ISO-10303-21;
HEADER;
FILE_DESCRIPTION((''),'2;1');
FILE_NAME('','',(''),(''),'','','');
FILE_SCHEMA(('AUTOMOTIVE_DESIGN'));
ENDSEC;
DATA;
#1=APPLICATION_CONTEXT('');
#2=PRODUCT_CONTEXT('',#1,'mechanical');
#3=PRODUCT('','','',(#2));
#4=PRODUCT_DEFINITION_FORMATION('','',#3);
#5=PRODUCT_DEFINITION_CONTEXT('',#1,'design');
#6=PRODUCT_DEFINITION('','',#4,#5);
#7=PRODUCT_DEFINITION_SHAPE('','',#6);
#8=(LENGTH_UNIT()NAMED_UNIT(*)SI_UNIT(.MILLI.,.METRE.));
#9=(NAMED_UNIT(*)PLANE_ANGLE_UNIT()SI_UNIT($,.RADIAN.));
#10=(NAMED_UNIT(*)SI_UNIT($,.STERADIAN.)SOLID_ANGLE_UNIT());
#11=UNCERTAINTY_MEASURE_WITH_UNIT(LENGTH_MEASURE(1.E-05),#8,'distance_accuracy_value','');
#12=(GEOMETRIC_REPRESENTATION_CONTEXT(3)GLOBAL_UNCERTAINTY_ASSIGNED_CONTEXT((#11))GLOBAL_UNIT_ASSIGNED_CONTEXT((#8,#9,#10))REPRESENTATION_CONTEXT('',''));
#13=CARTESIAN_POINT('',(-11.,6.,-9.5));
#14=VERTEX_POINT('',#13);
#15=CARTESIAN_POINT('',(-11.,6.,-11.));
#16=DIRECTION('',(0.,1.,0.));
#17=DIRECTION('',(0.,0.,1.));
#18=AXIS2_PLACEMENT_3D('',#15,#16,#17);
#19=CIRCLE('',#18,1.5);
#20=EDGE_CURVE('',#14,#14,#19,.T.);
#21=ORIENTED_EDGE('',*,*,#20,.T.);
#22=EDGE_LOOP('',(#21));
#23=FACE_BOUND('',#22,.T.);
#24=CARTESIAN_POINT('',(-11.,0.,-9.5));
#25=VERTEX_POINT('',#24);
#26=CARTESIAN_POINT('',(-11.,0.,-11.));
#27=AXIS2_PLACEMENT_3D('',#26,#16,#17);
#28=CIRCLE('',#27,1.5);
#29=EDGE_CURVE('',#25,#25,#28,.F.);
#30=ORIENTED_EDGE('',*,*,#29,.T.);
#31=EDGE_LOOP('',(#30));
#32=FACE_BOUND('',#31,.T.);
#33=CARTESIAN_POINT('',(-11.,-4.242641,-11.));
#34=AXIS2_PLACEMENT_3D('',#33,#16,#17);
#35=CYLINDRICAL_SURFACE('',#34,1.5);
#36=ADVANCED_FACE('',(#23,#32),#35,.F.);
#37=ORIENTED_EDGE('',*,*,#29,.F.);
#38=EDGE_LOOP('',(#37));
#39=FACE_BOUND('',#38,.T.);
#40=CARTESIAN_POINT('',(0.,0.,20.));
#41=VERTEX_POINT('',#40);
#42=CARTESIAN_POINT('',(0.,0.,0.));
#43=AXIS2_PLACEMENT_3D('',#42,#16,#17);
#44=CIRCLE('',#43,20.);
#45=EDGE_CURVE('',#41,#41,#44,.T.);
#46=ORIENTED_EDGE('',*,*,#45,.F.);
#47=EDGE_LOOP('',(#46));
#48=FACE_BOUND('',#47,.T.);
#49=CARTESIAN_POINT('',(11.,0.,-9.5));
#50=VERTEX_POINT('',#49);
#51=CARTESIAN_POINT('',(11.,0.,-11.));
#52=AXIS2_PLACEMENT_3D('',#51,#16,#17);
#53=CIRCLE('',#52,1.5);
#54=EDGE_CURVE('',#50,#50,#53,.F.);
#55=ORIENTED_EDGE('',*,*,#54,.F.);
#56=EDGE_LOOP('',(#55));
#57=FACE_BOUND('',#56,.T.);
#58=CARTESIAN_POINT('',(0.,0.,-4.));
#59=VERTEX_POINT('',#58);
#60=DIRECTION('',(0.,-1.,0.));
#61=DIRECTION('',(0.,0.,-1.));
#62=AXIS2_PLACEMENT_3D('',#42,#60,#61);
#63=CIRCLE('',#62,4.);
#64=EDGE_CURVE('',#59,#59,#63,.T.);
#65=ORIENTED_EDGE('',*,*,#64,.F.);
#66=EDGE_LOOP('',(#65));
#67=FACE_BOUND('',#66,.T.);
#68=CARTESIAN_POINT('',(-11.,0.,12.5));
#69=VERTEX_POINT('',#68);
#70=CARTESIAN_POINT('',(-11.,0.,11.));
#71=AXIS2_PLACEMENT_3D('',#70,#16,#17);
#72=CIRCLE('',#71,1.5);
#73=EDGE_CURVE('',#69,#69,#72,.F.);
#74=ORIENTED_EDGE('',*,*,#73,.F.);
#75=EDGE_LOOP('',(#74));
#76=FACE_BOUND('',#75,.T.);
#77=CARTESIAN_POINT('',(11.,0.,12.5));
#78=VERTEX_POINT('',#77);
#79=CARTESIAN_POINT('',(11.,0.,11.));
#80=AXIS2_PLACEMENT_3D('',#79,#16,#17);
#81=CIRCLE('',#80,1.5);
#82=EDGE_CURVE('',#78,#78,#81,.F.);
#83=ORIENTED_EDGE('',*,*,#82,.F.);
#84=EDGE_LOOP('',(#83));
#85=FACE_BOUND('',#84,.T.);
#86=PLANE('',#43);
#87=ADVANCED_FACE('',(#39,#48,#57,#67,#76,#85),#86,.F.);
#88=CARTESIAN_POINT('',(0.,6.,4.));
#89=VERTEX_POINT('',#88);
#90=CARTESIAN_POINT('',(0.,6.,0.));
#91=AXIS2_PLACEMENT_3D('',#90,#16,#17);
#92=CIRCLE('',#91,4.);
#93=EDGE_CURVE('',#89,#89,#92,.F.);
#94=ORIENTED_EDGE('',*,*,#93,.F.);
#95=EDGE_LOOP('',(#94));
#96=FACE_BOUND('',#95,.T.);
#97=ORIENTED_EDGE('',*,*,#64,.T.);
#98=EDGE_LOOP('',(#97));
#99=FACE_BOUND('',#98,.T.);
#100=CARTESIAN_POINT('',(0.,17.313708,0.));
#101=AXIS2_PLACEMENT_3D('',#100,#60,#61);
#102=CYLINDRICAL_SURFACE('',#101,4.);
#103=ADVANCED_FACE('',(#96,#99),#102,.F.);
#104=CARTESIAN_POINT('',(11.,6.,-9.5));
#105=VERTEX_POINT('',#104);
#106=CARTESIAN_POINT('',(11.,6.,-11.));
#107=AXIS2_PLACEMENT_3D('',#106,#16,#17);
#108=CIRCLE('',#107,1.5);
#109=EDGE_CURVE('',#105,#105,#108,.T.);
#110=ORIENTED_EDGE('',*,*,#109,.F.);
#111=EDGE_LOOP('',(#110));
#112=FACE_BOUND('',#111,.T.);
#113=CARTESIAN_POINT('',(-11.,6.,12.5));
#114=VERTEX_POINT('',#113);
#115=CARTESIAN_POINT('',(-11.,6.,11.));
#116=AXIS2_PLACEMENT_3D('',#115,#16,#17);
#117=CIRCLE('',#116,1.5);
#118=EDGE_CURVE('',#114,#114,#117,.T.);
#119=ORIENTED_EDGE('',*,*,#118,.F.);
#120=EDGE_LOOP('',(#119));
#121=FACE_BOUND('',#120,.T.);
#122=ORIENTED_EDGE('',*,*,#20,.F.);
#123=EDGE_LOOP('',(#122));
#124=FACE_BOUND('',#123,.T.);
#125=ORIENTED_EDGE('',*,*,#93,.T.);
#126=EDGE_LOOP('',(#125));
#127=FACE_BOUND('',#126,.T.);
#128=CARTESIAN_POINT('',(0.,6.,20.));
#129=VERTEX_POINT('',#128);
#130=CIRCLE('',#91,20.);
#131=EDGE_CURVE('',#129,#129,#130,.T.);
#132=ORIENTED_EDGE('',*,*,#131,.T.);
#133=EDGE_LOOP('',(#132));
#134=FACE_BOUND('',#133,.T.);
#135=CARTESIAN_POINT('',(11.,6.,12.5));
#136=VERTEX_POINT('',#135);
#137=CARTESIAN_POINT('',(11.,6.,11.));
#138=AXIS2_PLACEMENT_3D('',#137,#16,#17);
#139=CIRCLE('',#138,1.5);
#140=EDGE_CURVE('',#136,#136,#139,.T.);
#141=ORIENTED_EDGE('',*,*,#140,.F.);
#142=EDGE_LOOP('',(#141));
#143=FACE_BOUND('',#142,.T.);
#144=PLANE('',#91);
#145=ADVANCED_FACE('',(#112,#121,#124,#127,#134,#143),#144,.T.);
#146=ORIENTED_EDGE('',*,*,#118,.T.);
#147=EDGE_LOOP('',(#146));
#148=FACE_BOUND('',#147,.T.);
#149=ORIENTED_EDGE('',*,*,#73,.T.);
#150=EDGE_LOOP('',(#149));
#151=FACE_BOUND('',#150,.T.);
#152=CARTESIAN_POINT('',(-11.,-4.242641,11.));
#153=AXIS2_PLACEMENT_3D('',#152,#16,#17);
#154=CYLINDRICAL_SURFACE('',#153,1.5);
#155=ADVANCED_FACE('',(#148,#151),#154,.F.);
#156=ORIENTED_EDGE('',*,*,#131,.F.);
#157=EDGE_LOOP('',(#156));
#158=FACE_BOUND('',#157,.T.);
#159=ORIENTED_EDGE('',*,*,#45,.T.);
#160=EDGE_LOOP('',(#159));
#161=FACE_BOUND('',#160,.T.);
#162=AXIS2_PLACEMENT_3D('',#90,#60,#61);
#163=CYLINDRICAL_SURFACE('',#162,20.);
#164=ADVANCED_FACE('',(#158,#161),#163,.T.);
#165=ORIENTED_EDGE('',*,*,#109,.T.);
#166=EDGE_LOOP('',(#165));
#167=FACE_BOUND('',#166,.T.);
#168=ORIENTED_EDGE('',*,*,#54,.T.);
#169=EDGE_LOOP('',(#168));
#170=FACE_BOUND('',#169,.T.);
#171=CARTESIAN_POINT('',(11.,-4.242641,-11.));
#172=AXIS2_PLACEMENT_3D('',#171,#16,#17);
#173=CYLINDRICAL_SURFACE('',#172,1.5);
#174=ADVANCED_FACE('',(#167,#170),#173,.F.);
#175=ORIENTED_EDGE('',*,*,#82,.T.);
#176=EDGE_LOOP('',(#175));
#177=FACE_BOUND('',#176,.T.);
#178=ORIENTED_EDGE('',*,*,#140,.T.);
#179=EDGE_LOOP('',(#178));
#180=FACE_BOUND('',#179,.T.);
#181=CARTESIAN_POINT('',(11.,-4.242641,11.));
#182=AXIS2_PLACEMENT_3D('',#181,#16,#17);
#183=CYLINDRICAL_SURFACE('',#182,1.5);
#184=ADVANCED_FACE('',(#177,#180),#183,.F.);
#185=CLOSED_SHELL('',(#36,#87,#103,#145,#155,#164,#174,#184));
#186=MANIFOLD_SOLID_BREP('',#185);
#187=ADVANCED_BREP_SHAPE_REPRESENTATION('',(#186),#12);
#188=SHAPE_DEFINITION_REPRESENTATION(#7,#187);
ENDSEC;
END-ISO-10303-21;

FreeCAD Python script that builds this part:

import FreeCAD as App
import Part
import Sketcher
Q = App.Units.Quantity

doc = App.newDocument("Part")
body = doc.addObject("PartDesign::Body", "Body")

# Sketch on XZ plane
sketch1 = body.newObject("Sketcher::SketchObject", "Sketch")
sketch1.AttachmentSupport = (doc.getObject("XZ_Plane"), [""])
sketch1.MapMode = "FlatFace"
sketch1.addGeometry(Part.Circle(App.Vector(0, 0, 0), App.Vector(0, 0, 1), 20), False)
sketch1.addConstraint([
    Sketcher.Constraint("Coincident", 0, 3, -1, 1),
    Sketcher.Constraint("Diameter", 0, Q("40 mm")),
])
pad1 = body.newObject("PartDesign::Pad", "Pad")
pad1.Profile = sketch1
pad1.Length = 6
pad1.Reversed = True

# Sketch on XZ plane
sketch2 = body.newObject("Sketcher::SketchObject", "Sketch001")
sketch2.AttachmentSupport = (doc.getObject("XZ_Plane"), [""])
sketch2.MapMode = "FlatFace"
sketch2.AttachmentOffset = App.Placement(App.Vector(0, 0, -6), App.Rotation())
sketch2.addGeometry([
    Part.Circle(App.Vector(11, -11, 0), App.Vector(0, 0, 1), 1.5),
    Part.Circle(App.Vector(-11, -11, 0), App.Vector(0, 0, 1), 1.5),
    Part.Circle(App.Vector(-11, 11, 0), App.Vector(0, 0, 1), 1.5),
    Part.Circle(App.Vector(11, 11, 0), App.Vector(0, 0, 1), 1.5),
], False)
sketch2.addConstraint([
    Sketcher.Constraint("Equal", 0, 1),
    Sketcher.Constraint("Equal", 1, 2),
    Sketcher.Constraint("Equal", 2, 3),
    Sketcher.Constraint("Symmetric", 0, 3, 2, 3, -1, 1),
    Sketcher.Constraint("Symmetric", 1, 3, 3, 3, -1, 1),
    Sketcher.Constraint("Symmetric", 0, 3, 1, 3, -2),
    Sketcher.Constraint("Diameter", 0, Q("3 mm")),
    Sketcher.Constraint("DistanceX", -1, 1, 0, 3, Q("11 mm")),
    Sketcher.Constraint("DistanceY", 0, 3, -1, 1, Q("11 mm")),
])
pocket1 = body.newObject("PartDesign::Pocket", "Pocket")
pocket1.Profile = sketch2
pocket1.Length = 6
pocket1.Reversed = True

# Sketch on XZ plane
sketch3 = body.newObject("Sketcher::SketchObject", "Sketch002")
sketch3.AttachmentSupport = (doc.getObject("XZ_Plane"), [""])
sketch3.MapMode = "FlatFace"
sketch3.addGeometry(Part.Circle(App.Vector(0, 0, 0), App.Vector(0, 0, 1), 4), False)
sketch3.addConstraint([
    Sketcher.Constraint("Coincident", 0, 3, -1, 1),
    Sketcher.Constraint("Diameter", 0, Q("8 mm")),
])
pocket2 = body.newObject("PartDesign::Pocket", "Pocket001")
pocket2.Profile = sketch3
pocket2.Length = 6

doc.recompute()
